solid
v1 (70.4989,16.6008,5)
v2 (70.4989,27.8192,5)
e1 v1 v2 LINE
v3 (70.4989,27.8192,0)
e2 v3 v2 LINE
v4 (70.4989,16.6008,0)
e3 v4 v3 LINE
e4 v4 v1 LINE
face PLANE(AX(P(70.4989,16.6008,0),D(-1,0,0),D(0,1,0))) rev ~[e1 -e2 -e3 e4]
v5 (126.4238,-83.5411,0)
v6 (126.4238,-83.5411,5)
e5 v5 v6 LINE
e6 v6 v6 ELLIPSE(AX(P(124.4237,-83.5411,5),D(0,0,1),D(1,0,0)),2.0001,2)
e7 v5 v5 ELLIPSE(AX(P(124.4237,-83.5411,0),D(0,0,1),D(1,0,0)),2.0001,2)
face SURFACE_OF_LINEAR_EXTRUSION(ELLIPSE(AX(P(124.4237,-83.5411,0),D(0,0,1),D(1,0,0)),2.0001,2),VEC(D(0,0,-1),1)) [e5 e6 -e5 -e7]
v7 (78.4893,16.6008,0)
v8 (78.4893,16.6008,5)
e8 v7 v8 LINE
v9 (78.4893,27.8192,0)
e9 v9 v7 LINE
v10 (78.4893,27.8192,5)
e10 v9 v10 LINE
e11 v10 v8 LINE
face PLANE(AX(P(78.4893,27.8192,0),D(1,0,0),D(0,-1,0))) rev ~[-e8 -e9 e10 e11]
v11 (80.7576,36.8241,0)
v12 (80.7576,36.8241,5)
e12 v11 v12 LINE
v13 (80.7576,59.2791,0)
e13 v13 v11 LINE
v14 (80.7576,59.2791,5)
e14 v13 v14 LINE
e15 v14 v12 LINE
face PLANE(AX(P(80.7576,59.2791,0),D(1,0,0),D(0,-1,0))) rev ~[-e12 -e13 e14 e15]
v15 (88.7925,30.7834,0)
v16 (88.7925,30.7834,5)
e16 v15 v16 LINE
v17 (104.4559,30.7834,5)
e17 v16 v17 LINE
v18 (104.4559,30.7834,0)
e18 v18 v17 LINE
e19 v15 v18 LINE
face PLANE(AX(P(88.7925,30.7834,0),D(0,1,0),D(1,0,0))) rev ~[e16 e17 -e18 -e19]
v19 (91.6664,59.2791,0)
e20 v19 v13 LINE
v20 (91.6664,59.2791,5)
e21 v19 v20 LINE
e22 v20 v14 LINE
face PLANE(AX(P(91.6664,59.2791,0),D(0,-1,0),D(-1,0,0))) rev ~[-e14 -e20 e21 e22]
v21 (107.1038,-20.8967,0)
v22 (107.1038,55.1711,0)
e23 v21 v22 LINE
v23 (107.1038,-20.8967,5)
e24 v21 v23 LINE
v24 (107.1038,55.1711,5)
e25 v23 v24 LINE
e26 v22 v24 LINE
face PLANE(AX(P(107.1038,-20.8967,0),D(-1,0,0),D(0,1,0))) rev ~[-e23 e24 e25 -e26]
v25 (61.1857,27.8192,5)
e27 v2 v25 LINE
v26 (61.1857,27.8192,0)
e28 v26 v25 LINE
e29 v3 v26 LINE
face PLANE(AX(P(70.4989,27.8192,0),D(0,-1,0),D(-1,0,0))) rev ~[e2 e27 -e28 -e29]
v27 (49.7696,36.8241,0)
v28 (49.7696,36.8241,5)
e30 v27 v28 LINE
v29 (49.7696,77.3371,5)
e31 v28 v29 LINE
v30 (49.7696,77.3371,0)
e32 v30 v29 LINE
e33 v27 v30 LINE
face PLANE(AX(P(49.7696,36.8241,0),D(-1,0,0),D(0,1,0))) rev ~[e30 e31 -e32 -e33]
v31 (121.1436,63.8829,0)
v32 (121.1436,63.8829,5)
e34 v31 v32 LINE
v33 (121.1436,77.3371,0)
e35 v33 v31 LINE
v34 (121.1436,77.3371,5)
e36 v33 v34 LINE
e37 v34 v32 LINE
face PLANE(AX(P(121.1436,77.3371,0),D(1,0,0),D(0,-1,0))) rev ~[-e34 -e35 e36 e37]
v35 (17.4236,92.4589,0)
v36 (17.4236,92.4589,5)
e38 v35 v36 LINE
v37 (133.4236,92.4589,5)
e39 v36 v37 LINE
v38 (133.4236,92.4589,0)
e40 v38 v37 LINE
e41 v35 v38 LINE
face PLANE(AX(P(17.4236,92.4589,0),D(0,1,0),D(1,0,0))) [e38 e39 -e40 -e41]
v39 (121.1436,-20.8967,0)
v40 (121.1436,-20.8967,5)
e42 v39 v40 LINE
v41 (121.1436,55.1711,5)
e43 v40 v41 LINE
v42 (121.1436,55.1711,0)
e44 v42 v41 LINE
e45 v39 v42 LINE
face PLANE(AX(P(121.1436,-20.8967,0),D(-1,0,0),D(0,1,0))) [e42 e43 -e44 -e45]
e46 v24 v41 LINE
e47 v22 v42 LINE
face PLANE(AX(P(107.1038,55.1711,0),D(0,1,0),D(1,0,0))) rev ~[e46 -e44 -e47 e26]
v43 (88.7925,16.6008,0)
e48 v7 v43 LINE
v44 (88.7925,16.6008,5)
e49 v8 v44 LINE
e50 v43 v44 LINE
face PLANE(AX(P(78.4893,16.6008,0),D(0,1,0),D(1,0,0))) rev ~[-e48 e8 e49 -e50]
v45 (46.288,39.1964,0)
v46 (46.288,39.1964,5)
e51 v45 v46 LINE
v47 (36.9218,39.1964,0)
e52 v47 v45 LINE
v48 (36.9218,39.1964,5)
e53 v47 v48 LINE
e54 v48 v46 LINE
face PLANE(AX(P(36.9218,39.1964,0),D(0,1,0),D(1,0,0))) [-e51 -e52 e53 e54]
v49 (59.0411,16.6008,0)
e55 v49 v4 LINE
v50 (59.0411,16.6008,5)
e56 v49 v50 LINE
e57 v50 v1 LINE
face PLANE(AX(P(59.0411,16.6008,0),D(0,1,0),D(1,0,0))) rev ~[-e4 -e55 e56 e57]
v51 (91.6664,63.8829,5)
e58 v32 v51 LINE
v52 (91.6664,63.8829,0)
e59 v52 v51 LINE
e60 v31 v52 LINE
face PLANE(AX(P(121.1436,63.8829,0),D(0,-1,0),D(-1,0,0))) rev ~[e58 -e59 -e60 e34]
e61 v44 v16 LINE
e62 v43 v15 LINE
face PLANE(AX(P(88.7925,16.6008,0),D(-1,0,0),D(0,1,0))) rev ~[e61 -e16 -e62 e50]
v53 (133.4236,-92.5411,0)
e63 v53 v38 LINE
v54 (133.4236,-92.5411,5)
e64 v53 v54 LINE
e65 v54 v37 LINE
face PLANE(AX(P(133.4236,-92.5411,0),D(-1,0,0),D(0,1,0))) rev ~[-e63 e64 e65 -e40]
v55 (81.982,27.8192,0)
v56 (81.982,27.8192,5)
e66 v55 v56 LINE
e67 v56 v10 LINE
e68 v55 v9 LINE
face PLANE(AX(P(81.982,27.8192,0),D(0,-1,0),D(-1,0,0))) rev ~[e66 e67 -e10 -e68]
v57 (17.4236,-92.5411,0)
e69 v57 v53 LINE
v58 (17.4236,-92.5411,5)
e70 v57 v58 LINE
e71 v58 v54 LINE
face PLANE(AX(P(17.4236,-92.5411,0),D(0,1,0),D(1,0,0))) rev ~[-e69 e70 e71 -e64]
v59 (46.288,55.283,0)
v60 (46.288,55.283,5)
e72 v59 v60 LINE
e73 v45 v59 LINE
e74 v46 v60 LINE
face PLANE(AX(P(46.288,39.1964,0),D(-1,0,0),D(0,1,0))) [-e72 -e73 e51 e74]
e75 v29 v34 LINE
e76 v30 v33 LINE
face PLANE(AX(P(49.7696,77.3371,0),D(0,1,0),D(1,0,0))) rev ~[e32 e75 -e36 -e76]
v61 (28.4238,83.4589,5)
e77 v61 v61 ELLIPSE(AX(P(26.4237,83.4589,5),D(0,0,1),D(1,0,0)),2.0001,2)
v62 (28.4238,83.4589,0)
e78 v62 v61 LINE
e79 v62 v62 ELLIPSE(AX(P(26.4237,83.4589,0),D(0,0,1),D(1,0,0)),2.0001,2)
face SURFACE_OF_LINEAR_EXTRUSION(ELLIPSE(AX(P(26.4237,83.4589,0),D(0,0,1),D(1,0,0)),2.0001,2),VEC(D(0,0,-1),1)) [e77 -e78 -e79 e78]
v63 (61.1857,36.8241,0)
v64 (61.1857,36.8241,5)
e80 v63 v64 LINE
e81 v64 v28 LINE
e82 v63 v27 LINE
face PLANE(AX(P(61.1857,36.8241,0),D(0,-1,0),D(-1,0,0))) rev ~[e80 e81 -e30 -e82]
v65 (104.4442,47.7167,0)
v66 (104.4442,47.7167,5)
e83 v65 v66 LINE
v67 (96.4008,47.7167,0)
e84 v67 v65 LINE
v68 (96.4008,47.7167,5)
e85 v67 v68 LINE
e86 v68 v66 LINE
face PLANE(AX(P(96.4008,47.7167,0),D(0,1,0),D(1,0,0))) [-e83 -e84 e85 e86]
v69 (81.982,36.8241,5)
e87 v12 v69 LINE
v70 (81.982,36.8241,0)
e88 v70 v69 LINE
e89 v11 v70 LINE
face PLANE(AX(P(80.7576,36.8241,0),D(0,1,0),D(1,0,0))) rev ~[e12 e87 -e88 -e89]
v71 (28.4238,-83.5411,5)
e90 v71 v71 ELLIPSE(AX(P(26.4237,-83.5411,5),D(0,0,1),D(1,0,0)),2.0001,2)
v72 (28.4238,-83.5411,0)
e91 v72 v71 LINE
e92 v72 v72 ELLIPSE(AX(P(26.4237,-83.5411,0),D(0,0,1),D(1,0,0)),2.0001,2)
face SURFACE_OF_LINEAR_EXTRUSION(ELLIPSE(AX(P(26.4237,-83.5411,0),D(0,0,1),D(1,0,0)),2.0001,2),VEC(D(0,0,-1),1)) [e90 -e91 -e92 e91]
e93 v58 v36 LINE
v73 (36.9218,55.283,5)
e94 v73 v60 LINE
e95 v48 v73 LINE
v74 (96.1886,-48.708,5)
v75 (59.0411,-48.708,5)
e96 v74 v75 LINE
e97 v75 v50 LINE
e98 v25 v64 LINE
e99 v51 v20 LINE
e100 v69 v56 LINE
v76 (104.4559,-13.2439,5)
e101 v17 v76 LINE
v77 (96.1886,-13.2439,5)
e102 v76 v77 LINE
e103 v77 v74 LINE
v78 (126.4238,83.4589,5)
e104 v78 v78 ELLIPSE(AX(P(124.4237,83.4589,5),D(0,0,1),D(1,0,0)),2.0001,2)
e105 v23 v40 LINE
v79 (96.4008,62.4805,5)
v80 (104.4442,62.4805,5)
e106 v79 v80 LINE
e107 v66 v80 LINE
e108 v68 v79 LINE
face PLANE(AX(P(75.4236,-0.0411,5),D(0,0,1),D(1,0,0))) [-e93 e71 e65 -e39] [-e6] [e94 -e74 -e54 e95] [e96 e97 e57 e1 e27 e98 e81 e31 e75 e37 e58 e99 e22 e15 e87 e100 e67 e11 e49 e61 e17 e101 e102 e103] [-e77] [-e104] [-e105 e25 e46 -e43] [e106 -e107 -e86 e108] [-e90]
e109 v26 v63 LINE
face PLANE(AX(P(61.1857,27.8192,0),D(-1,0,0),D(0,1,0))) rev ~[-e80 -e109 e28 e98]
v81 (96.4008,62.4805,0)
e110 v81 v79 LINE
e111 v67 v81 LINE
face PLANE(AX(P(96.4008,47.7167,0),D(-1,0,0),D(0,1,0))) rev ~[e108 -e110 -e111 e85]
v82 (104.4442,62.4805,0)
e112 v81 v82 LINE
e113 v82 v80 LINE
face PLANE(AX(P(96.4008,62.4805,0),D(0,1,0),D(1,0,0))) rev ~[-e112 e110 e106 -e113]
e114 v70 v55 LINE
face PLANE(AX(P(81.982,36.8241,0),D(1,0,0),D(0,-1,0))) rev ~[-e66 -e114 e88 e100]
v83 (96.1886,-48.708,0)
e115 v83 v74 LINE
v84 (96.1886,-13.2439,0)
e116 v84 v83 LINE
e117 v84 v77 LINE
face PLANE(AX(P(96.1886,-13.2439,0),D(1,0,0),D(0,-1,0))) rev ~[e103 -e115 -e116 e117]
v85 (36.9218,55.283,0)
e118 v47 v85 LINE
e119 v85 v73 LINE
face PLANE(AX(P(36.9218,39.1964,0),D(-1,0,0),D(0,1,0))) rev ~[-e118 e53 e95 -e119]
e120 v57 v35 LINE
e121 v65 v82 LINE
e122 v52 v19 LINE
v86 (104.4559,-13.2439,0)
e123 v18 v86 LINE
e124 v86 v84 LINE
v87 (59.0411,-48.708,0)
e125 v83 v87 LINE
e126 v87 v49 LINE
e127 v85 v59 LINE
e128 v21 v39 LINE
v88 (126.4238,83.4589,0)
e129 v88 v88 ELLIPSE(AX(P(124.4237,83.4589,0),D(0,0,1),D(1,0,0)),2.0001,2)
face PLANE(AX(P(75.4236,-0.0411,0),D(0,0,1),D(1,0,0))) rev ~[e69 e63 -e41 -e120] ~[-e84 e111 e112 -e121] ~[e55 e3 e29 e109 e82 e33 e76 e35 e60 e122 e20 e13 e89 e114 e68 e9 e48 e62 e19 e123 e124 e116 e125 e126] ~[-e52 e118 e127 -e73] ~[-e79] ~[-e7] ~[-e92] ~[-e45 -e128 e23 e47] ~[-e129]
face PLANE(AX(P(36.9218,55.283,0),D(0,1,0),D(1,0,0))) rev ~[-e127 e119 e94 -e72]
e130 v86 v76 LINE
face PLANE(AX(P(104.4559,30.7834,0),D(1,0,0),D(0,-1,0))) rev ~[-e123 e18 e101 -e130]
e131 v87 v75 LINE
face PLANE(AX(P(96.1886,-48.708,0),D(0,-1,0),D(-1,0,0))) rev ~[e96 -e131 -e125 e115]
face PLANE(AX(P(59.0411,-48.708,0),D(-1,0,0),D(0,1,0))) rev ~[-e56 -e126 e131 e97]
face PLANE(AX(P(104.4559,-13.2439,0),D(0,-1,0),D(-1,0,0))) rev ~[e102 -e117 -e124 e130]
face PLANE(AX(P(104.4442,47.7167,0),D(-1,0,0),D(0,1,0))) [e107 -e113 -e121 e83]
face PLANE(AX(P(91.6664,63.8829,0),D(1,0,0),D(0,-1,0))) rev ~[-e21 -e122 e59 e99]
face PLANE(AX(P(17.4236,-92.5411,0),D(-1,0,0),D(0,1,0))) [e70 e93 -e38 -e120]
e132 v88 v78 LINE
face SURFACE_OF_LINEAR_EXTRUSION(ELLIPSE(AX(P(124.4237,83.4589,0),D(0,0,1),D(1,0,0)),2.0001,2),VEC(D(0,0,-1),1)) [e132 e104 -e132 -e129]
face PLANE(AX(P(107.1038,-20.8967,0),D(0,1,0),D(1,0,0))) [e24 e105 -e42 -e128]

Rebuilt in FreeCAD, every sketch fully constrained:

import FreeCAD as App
import Part
import Sketcher

V = App.Vector
Q = App.Units.Quantity

doc = App.newDocument("Part")
params = doc.addObject("Spreadsheet::Sheet", "Params")
for row, (alias, value) in enumerate([
    ("sketch1_width", "116 mm"),
    ("sketch1_height", "185 mm"),
    ("pad1_length", "5 mm"),
], start=1):
    params.set(f"A{row}", alias)
    params.set(f"B{row}", "=" + value)
    params.setAlias(f"B{row}", alias)

body = doc.addObject("PartDesign::Body", "Body")

sketch1 = body.newObject("Sketcher::SketchObject", "Sketch")
sketch1.AttachmentSupport = (doc.getObject("XY_Plane"), [""])
sketch1.MapMode = "FlatFace"
sketch1.addGeometry([
    Part.LineSegment(V(17.4236, 92.4589, 0), V(17.4236, -92.5411, 0)),
    Part.LineSegment(V(17.4236, -92.5411, 0), V(133.4236, -92.5411, 0)),
    Part.LineSegment(V(133.4236, -92.5411, 0), V(133.4236, 92.4589, 0)),
    Part.LineSegment(V(133.4236, 92.4589, 0), V(17.4236, 92.4589, 0)),
    Part.Ellipse(V(28.4238, -83.5411, 0), V(26.4237, -81.5411, 0), V(26.4237, -83.5411, 0)),
    Part.Ellipse(V(126.4238, -83.5411, 0), V(124.4237, -81.5411, 0), V(124.4237, -83.5411, 0)),
    Part.LineSegment(V(46.288, 39.1964, 0), V(36.9218, 39.1964, 0)),
    Part.LineSegment(V(36.9218, 39.1964, 0), V(36.9218, 55.283, 0)),
    Part.LineSegment(V(36.9218, 55.283, 0), V(46.288, 55.283, 0)),
    Part.LineSegment(V(46.288, 55.283, 0), V(46.288, 39.1964, 0)),
    Part.Ellipse(V(28.4238, 83.4589, 0), V(26.4237, 85.4589, 0), V(26.4237, 83.4589, 0)),
    Part.LineSegment(V(88.7925, 16.6008, 0), V(88.7925, 30.7834, 0)),
    Part.LineSegment(V(88.7925, 30.7834, 0), V(104.4559, 30.7834, 0)),
    Part.LineSegment(V(104.4559, 30.7834, 0), V(104.4559, -13.2439, 0)),
    Part.LineSegment(V(104.4559, -13.2439, 0), V(96.1886, -13.2439, 0)),
    Part.LineSegment(V(96.1886, -13.2439, 0), V(96.1886, -48.708, 0)),
    Part.LineSegment(V(96.1886, -48.708, 0), V(59.0411, -48.708, 0)),
    Part.LineSegment(V(59.0411, -48.708, 0), V(59.0411, 16.6008, 0)),
    Part.LineSegment(V(59.0411, 16.6008, 0), V(70.4989, 16.6008, 0)),
    Part.LineSegment(V(70.4989, 16.6008, 0), V(70.4989, 27.8192, 0)),
    Part.LineSegment(V(70.4989, 27.8192, 0), V(61.1857, 27.8192, 0)),
    Part.LineSegment(V(61.1857, 27.8192, 0), V(61.1857, 36.8241, 0)),
    Part.LineSegment(V(61.1857, 36.8241, 0), V(49.7696, 36.8241, 0)),
    Part.LineSegment(V(49.7696, 36.8241, 0), V(49.7696, 77.3371, 0)),
    Part.LineSegment(V(49.7696, 77.3371, 0), V(121.1436, 77.3371, 0)),
    Part.LineSegment(V(121.1436, 77.3371, 0), V(121.1436, 63.8829, 0)),
    Part.LineSegment(V(121.1436, 63.8829, 0), V(91.6664, 63.8829, 0)),
    Part.LineSegment(V(91.6664, 63.8829, 0), V(91.6664, 59.2791, 0)),
    Part.LineSegment(V(91.6664, 59.2791, 0), V(80.7576, 59.2791, 0)),
    Part.LineSegment(V(80.7576, 59.2791, 0), V(80.7576, 36.8241, 0)),
    Part.LineSegment(V(80.7576, 36.8241, 0), V(81.982, 36.8241, 0)),
    Part.LineSegment(V(81.982, 36.8241, 0), V(81.982, 27.8192, 0)),
    Part.LineSegment(V(81.982, 27.8192, 0), V(78.4893, 27.8192, 0)),
    Part.LineSegment(V(78.4893, 27.8192, 0), V(78.4893, 16.6008, 0)),
    Part.LineSegment(V(78.4893, 16.6008, 0), V(88.7925, 16.6008, 0)),
    Part.LineSegment(V(121.1436, -20.8967, 0), V(107.1038, -20.8967, 0)),
    Part.LineSegment(V(107.1038, -20.8967, 0), V(107.1038, 55.1711, 0)),
    Part.LineSegment(V(107.1038, 55.1711, 0), V(121.1436, 55.1711, 0)),
    Part.LineSegment(V(121.1436, 55.1711, 0), V(121.1436, -20.8967, 0)),
    Part.LineSegment(V(104.4442, 47.7167, 0), V(96.4008, 47.7167, 0)),
    Part.LineSegment(V(96.4008, 47.7167, 0), V(96.4008, 62.4805, 0)),
    Part.LineSegment(V(96.4008, 62.4805, 0), V(104.4442, 62.4805, 0)),
    Part.LineSegment(V(104.4442, 62.4805, 0), V(104.4442, 47.7167, 0)),
    Part.Ellipse(V(126.4238, 83.4589, 0), V(124.4237, 85.4589, 0), V(124.4237, 83.4589, 0)),
], False)
sketch1.addConstraint([
    Sketcher.Constraint("Block", 4),
    Sketcher.Constraint("Block", 5),
    Sketcher.Constraint("Block", 10),
    Sketcher.Constraint("Block", 43),
    Sketcher.Constraint("Coincident", 0, 2, 1, 1),
    Sketcher.Constraint("Coincident", 1, 2, 2, 1),
    Sketcher.Constraint("Coincident", 2, 2, 3, 1),
    Sketcher.Constraint("Coincident", 3, 2, 0, 1),
    Sketcher.Constraint("Coincident", 6, 2, 7, 1),
    Sketcher.Constraint("Coincident", 7, 2, 8, 1),
    Sketcher.Constraint("Coincident", 8, 2, 9, 1),
    Sketcher.Constraint("Coincident", 9, 2, 6, 1),
    Sketcher.Constraint("Coincident", 11, 2, 12, 1),
    Sketcher.Constraint("Coincident", 12, 2, 13, 1),
    Sketcher.Constraint("Coincident", 13, 2, 14, 1),
    Sketcher.Constraint("Coincident", 14, 2, 15, 1),
    Sketcher.Constraint("Coincident", 15, 2, 16, 1),
    Sketcher.Constraint("Coincident", 16, 2, 17, 1),
    Sketcher.Constraint("Coincident", 17, 2, 18, 1),
    Sketcher.Constraint("Coincident", 18, 2, 19, 1),
    Sketcher.Constraint("Coincident", 19, 2, 20, 1),
    Sketcher.Constraint("Coincident", 20, 2, 21, 1),
    Sketcher.Constraint("Coincident", 21, 2, 22, 1),
    Sketcher.Constraint("Coincident", 22, 2, 23, 1),
    Sketcher.Constraint("Coincident", 23, 2, 24, 1),
    Sketcher.Constraint("Coincident", 24, 2, 25, 1),
    Sketcher.Constraint("Coincident", 25, 2, 26, 1),
    Sketcher.Constraint("Coincident", 26, 2, 27, 1),
    Sketcher.Constraint("Coincident", 27, 2, 28, 1),
    Sketcher.Constraint("Coincident", 28, 2, 29, 1),
    Sketcher.Constraint("Coincident", 29, 2, 30, 1),
    Sketcher.Constraint("Coincident", 30, 2, 31, 1),
    Sketcher.Constraint("Coincident", 31, 2, 32, 1),
    Sketcher.Constraint("Coincident", 32, 2, 33, 1),
    Sketcher.Constraint("Coincident", 33, 2, 34, 1),
    Sketcher.Constraint("Coincident", 34, 2, 11, 1),
    Sketcher.Constraint("Coincident", 35, 2, 36, 1),
    Sketcher.Constraint("Coincident", 36, 2, 37, 1),
    Sketcher.Constraint("Coincident", 37, 2, 38, 1),
    Sketcher.Constraint("Coincident", 38, 2, 35, 1),
    Sketcher.Constraint("Coincident", 39, 2, 40, 1),
    Sketcher.Constraint("Coincident", 40, 2, 41, 1),
    Sketcher.Constraint("Coincident", 41, 2, 42, 1),
    Sketcher.Constraint("Coincident", 42, 2, 39, 1),
    Sketcher.Constraint("Vertical", 0),
    Sketcher.Constraint("Horizontal", 1),
    Sketcher.Constraint("Vertical", 2),
    Sketcher.Constraint("Horizontal", 3),
    Sketcher.Constraint("Horizontal", 6),
    Sketcher.Constraint("Vertical", 7),
    Sketcher.Constraint("Horizontal", 8),
    Sketcher.Constraint("Vertical", 9),
    Sketcher.Constraint("Vertical", 11),
    Sketcher.Constraint("Horizontal", 12),
    Sketcher.Constraint("Vertical", 13),
    Sketcher.Constraint("Horizontal", 14),
    Sketcher.Constraint("Vertical", 15),
    Sketcher.Constraint("Horizontal", 16),
    Sketcher.Constraint("Vertical", 17),
    Sketcher.Constraint("Horizontal", 18),
    Sketcher.Constraint("Vertical", 19),
    Sketcher.Constraint("Horizontal", 20),
    Sketcher.Constraint("Vertical", 21),
    Sketcher.Constraint("Horizontal", 22),
    Sketcher.Constraint("Vertical", 23),
    Sketcher.Constraint("Horizontal", 24),
    Sketcher.Constraint("Vertical", 25),
    Sketcher.Constraint("Horizontal", 26),
    Sketcher.Constraint("Vertical", 27),
    Sketcher.Constraint("Horizontal", 28),
    Sketcher.Constraint("Vertical", 29),
    Sketcher.Constraint("Horizontal", 30),
    Sketcher.Constraint("Vertical", 31),
    Sketcher.Constraint("Horizontal", 32),
    Sketcher.Constraint("Vertical", 33),
    Sketcher.Constraint("Horizontal", 34),
    Sketcher.Constraint("Horizontal", 35),
    Sketcher.Constraint("Vertical", 36),
    Sketcher.Constraint("Horizontal", 37),
    Sketcher.Constraint("Vertical", 38),
    Sketcher.Constraint("Horizontal", 39),
    Sketcher.Constraint("Vertical", 40),
    Sketcher.Constraint("Horizontal", 41),
    Sketcher.Constraint("Vertical", 42),
    Sketcher.Constraint("Horizontal", 22, 2, 29, 2),
    Sketcher.Constraint("Horizontal", 20, 2, 31, 2),
    Sketcher.Constraint("Horizontal", 18, 2, 33, 2),
    Sketcher.Constraint("Vertical", 25, 2, 37, 2),
    Sketcher.Constraint("DistanceX", 1, 1, 1, 2, Q("116 mm")),
    Sketcher.Constraint("DistanceY", 0, 2, 0, 1, Q("185 mm")),
    Sketcher.Constraint("DistanceX", 24, 1, 24, 2, Q("71.374 mm")),
    Sketcher.Constraint("DistanceY", 23, 1, 23, 2, Q("40.513 mm")),
    Sketcher.Constraint("DistanceY", 29, 2, 29, 1, Q("22.455 mm")),
    Sketcher.Constraint("DistanceX", 24, 2, 2, 2, Q("12.28 mm")),
    Sketcher.Constraint("DistanceX", 6, 2, 6, 1, Q("9.3662 mm")),
    Sketcher.Constraint("DistanceX", 12, 1, 12, 2, Q("15.6634 mm")),
    Sketcher.Constraint("DistanceX", 14, 2, 14, 1, Q("8.2673 mm")),
    Sketcher.Constraint("DistanceX", 16, 2, 16, 1, Q("37.1475 mm")),
    Sketcher.Constraint("DistanceX", 18, 1, 18, 2, Q("11.4578 mm")),
    Sketcher.Constraint("DistanceX", 20, 2, 20, 1, Q("9.3132 mm")),
    Sketcher.Constraint("DistanceX", 22, 2, 22, 1, Q("11.4161 mm")),
    Sketcher.Constraint("DistanceX", 26, 2, 26, 1, Q("29.4772 mm")),
    Sketcher.Constraint("DistanceX", 28, 2, 28, 1, Q("10.9088 mm")),
    Sketcher.Constraint("DistanceX", 30, 1, 30, 2, Q("1.2244 mm")),
    Sketcher.Constraint("DistanceX", 32, 2, 32, 1, Q("3.4927 mm")),
    Sketcher.Constraint("DistanceX", 35, 2, 35, 1, Q("14.0398 mm")),
    Sketcher.Constraint("DistanceX", 39, 2, 39, 1, Q("8.0434 mm")),
    Sketcher.Constraint("DistanceY", 7, 1, 7, 2, Q("16.0866 mm")),
    Sketcher.Constraint("DistanceY", 11, 1, 11, 2, Q("14.1826 mm")),
    Sketcher.Constraint("DistanceY", 13, 2, 13, 1, Q("44.0273 mm")),
    Sketcher.Constraint("DistanceY", 15, 2, 15, 1, Q("35.4641 mm")),
    Sketcher.Constraint("DistanceY", 19, 1, 19, 2, Q("11.2184 mm")),
    Sketcher.Constraint("DistanceY", 21, 1, 21, 2, Q("9.0049 mm")),
    Sketcher.Constraint("DistanceY", 25, 2, 25, 1, Q("13.4542 mm")),
    Sketcher.Constraint("DistanceY", 36, 1, 36, 2, Q("76.0678 mm")),
    Sketcher.Constraint("DistanceY", 40, 1, 40, 2, Q("14.7638 mm")),
    Sketcher.Constraint("DistanceY", -1, 1, 7, 2, Q("55.283 mm")),
    Sketcher.Constraint("DistanceX", -1, 1, 8, 2, Q("46.288 mm")),
    Sketcher.Constraint("DistanceY", 15, 2, -1, 1, Q("48.708 mm")),
    Sketcher.Constraint("DistanceX", -1, 1, 30, 2, Q("81.982 mm")),
    Sketcher.Constraint("DistanceY", 25, 2, 2, 2, Q("28.576 mm")),
    Sketcher.Constraint("DistanceY", 36, 2, 27, 2, Q("4.108 mm")),
    Sketcher.Constraint("DistanceX", 39, 2, 36, 2, Q("10.703 mm")),
    Sketcher.Constraint("DistanceY", -1, 1, 39, 2, Q("47.7167 mm")),
])
sketch1.setExpression("Constraints[88]", "Params.sketch1_width")
sketch1.setExpression("Constraints[89]", "Params.sketch1_height")
pad1 = body.newObject("PartDesign::Pad", "Pad")
pad1.Profile = sketch1
pad1.setExpression("Length", "Params.pad1_length")

doc.recompute()
